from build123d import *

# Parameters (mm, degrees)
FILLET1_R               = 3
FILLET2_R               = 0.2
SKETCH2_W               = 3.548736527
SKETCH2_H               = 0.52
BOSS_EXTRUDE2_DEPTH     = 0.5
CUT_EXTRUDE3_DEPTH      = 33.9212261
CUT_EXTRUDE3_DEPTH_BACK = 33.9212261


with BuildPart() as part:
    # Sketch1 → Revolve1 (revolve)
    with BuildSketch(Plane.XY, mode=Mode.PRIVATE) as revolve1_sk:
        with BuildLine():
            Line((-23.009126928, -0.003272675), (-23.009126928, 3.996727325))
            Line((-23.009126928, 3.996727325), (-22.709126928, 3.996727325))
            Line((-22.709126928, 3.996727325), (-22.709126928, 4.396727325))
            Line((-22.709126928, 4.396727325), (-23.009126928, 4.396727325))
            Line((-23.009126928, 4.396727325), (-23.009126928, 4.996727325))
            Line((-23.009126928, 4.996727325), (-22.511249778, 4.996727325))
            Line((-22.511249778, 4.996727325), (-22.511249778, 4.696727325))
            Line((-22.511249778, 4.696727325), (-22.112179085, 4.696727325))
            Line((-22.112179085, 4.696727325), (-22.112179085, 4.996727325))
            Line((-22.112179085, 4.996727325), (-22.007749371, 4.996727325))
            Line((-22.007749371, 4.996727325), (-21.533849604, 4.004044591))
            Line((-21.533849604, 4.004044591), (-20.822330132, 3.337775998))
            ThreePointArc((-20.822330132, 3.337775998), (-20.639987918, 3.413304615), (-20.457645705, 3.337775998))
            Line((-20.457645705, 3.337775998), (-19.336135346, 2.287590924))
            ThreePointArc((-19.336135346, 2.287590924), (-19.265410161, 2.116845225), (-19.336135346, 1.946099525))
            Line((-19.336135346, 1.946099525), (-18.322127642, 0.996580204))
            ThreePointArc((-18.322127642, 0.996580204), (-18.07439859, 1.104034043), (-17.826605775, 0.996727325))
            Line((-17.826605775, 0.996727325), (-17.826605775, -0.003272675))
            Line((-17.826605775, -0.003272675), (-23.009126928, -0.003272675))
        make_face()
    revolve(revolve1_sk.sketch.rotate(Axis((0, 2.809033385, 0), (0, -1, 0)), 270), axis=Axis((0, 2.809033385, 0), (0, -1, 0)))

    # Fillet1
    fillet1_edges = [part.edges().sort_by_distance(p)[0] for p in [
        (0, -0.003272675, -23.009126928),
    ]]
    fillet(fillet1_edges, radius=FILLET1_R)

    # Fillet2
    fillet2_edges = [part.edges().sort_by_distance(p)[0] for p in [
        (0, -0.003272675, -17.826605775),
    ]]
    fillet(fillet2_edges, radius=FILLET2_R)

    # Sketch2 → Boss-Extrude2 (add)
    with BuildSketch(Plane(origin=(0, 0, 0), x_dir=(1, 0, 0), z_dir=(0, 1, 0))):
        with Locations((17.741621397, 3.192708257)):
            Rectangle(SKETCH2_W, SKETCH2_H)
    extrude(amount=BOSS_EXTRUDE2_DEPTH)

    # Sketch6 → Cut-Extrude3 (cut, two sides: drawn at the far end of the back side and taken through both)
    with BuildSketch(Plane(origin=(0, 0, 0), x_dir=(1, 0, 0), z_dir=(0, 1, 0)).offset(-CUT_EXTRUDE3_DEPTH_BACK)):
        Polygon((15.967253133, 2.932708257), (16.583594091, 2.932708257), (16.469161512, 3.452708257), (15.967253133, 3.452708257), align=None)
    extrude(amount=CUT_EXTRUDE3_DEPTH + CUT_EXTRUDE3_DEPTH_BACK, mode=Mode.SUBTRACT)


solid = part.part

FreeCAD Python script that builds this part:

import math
import FreeCAD as App
import Part
import Sketcher


def edges_at(feature, points):
    """Names of the edges that pass closest to the given points."""
    edges = feature.Shape.Edges
    near = lambda p: min(range(len(edges)), key=lambda i: edges[i].distToShape(Part.Vertex(*p))[0])
    return sorted({f"Edge{near(p) + 1}" for p in points})


def add_polygon(sketch, points):
    """Adds a closed chain of lines whose ends are joined by coincident constraints."""
    first, n = sketch.GeometryCount, len(points)
    for a, b in zip(points, points[1:] + points[:1]):
        sketch.addGeometry(Part.LineSegment(App.Vector(*a, 0), App.Vector(*b, 0)), False)
    for i in range(n):
        sketch.addConstraint(Sketcher.Constraint("Coincident", first + i, 2, first + (i + 1) % n, 1))

doc = App.newDocument("Part")
body = doc.addObject("PartDesign::Body", "Body")

sketch1 = body.newObject("Sketcher::SketchObject", "Sketch")
sketch1.AttachmentSupport = (doc.getObject("XY_Plane"), [""])
sketch1.MapMode = "FlatFace"
sketch1.addGeometry([
    Part.LineSegment(App.Vector(-23.009127, 3.996727, 0), App.Vector(-23.009127, -0.003273, 0)),
    Part.LineSegment(App.Vector(-23.009127, -0.003273, 0), App.Vector(-17.826606, -0.003273, 0)),
    Part.LineSegment(App.Vector(-17.826606, -0.003273, 0), App.Vector(-17.826606, 0.996727, 0)),
    Part.ArcOfCircle(Part.Circle(App.Vector(-18.074298, 0.764512, 0), App.Vector(0, 0, 1), 0.339522), math.radians(43.152925), math.radians(136.881097)),
    Part.LineSegment(App.Vector(-18.322128, 0.99658, 0), App.Vector(-19.336135, 1.9461, 0)),
    Part.ArcOfCircle(Part.Circle(App.Vector(-19.506881, 2.116845, 0), App.Vector(0, 0, 1), 0.241471), math.radians(-45), math.radians(45)),
    Part.LineSegment(App.Vector(-19.336135, 2.287591, 0), App.Vector(-20.457646, 3.337776, 0)),
    Part.ArcOfCircle(Part.Circle(App.Vector(-20.639988, 3.155434, 0), App.Vector(0, 0, 1), 0.257871), math.radians(45), math.radians(135)),
    Part.LineSegment(App.Vector(-20.82233, 3.337776, 0), App.Vector(-21.53385, 4.004045, 0)),
    Part.LineSegment(App.Vector(-21.53385, 4.004045, 0), App.Vector(-22.007749, 4.996727, 0)),
    Part.LineSegment(App.Vector(-22.007749, 4.996727, 0), App.Vector(-22.112179, 4.996727, 0)),
    Part.LineSegment(App.Vector(-22.112179, 4.996727, 0), App.Vector(-22.112179, 4.696727, 0)),
    Part.LineSegment(App.Vector(-22.112179, 4.696727, 0), App.Vector(-22.51125, 4.696727, 0)),
    Part.LineSegment(App.Vector(-22.51125, 4.696727, 0), App.Vector(-22.51125, 4.996727, 0)),
    Part.LineSegment(App.Vector(-22.51125, 4.996727, 0), App.Vector(-23.009127, 4.996727, 0)),
    Part.LineSegment(App.Vector(-23.009127, 4.996727, 0), App.Vector(-23.009127, 4.396727, 0)),
    Part.LineSegment(App.Vector(-23.009127, 4.396727, 0), App.Vector(-22.709127, 4.396727, 0)),
    Part.LineSegment(App.Vector(-22.709127, 4.396727, 0), App.Vector(-22.709127, 3.996727, 0)),
    Part.LineSegment(App.Vector(-22.709127, 3.996727, 0), App.Vector(-23.009127, 3.996727, 0)),
], False)
sketch1.addConstraint([
    Sketcher.Constraint("Coincident", 0, 2, 1, 1),
    Sketcher.Constraint("Coincident", 1, 2, 2, 1),
    Sketcher.Constraint("Coincident", 2, 2, 3, 1),
    Sketcher.Constraint("Coincident", 3, 2, 4, 1),
    Sketcher.Constraint("Coincident", 4, 2, 5, 1),
    Sketcher.Constraint("Coincident", 5, 2, 6, 1),
    Sketcher.Constraint("Coincident", 6, 2, 7, 1),
    Sketcher.Constraint("Coincident", 7, 2, 8, 1),
    Sketcher.Constraint("Coincident", 8, 2, 9, 1),
    Sketcher.Constraint("Coincident", 9, 2, 10, 1),
    Sketcher.Constraint("Coincident", 10, 2, 11, 1),
    Sketcher.Constraint("Coincident", 11, 2, 12, 1),
    Sketcher.Constraint("Coincident", 12, 2, 13, 1),
    Sketcher.Constraint("Coincident", 13, 2, 14, 1),
    Sketcher.Constraint("Coincident", 14, 2, 15, 1),
    Sketcher.Constraint("Coincident", 15, 2, 16, 1),
    Sketcher.Constraint("Coincident", 16, 2, 17, 1),
    Sketcher.Constraint("Coincident", 17, 2, 18, 1),
    Sketcher.Constraint("Coincident", 18, 2, 0, 1),
    Sketcher.Constraint("Vertical", 0),
    Sketcher.Constraint("Horizontal", 1),
    Sketcher.Constraint("Vertical", 2),
    Sketcher.Constraint("Horizontal", 10),
    Sketcher.Constraint("Vertical", 11),
    Sketcher.Constraint("Horizontal", 12),
    Sketcher.Constraint("Vertical", 13),
    Sketcher.Constraint("Horizontal", 14),
    Sketcher.Constraint("Vertical", 15),
    Sketcher.Constraint("Horizontal", 16),
    Sketcher.Constraint("Vertical", 17),
    Sketcher.Constraint("Horizontal", 18),
    Sketcher.Constraint("Parallel", 4, 6),
    Sketcher.Constraint("Parallel", 6, 8),
    Sketcher.Constraint("Horizontal", 6, 2, 7, 2),
    Sketcher.Constraint("Horizontal", 10, 2, 13, 2),
    Sketcher.Constraint("Vertical", 4, 2, 5, 2),
    Sketcher.Constraint("Vertical", 0, 2, 14, 2),
    Sketcher.Constraint("Equal", 18, 11),
    Sketcher.Constraint("DistanceY", 0, 2, 0, 1, 4.0),
    Sketcher.Constraint("DistanceY", 2, 1, 2, 2, 1.0),
    Sketcher.Constraint("DistanceX", 16, 1, 16, 2, 0.3),
    Sketcher.Constraint("DistanceY", 15, 2, 15, 1, 0.6),
    Sketcher.Constraint("DistanceY", 17, 2, 17, 1, 0.4),
    Sketcher.Constraint("Distance", 9, 1.1),
    Sketcher.Constraint("Radius", 5, 0.241471),
    Sketcher.Constraint("Radius", 7, 0.257871),
    Sketcher.Constraint("Radius", 3, 0.339522),
    Sketcher.Constraint("DistanceX", 1, 1, 1, 2, 5.182521),
    Sketcher.Constraint("DistanceX", 10, 2, 10, 1, 0.10443),
    Sketcher.Constraint("DistanceX", 12, 2, 12, 1, 0.399071),
    Sketcher.Constraint("DistanceY", -1, 1, 4, 2, 1.9461),
    Sketcher.Constraint("DistanceY", 5, 3, 8, 2, 1.887199),
    Sketcher.Constraint("DistanceX", 9, 2, 8, 2, 0.4739),
    Sketcher.Constraint("Distance", 4, 1.389172),
    Sketcher.Constraint("Distance", 6, 1.536449),
    Sketcher.Constraint("Distance", 8, 0.974769),
    Sketcher.Constraint("DistanceX", 14, 2, 14, 1, 0.497877),
    Sketcher.Constraint("DistanceY", -1, 1, 3, 3, 0.764512),
    Sketcher.Constraint("DistanceX", 5, 3, -1, 1, 19.506881),
    Sketcher.Constraint("DistanceY", -1, 1, 3, 2, 0.99658),
])
revolution = body.newObject("PartDesign::Revolution", "Revolution")
revolution.Profile = sketch1
revolution.ReferenceAxis = (sketch1, ["V_Axis"])
revolution.Angle = 360
doc.recompute()

fillet = body.newObject("PartDesign::Fillet", "Fillet")
fillet.Base = (revolution, edges_at(revolution, [(0, -0.003, -23.009)]))
fillet.Radius = 3
doc.recompute()

fillet2 = body.newObject("PartDesign::Fillet", "Fillet001")
fillet2.Base = (fillet, edges_at(fillet, [(0, -0.003, -17.827)]))
fillet2.Radius = 0.2

sketch2 = body.newObject("Sketcher::SketchObject", "Sketch001")
sketch2.AttachmentSupport = (doc.getObject("XZ_Plane"), [""])
sketch2.MapMode = "FlatFace"
add_polygon(sketch2, [(15.967253, -3.452708), (15.967253, -2.932708), (19.51599, -2.932708), (19.51599, -3.452708)])
sketch2.addConstraint([
    Sketcher.Constraint("Vertical", 0),
    Sketcher.Constraint("Horizontal", 1),
    Sketcher.Constraint("Vertical", 2),
    Sketcher.Constraint("Horizontal", 3),
    Sketcher.Constraint("DistanceY", 0, 1, 0, 2, 0.52),
    Sketcher.Constraint("DistanceX", 1, 1, 1, 2, 3.548737),
    Sketcher.Constraint("DistanceY", 0, 2, -1, 1, 2.932708),
    Sketcher.Constraint("DistanceX", -1, 1, 1, 2, 19.51599),
])
pad1 = body.newObject("PartDesign::Pad", "Pad")
pad1.Profile = sketch2
pad1.Length = 0.5
pad1.Reversed = True

sketch3 = body.newObject("Sketcher::SketchObject", "Sketch002")
sketch3.AttachmentSupport = (doc.getObject("XZ_Plane"), [""])
sketch3.MapMode = "FlatFace"
add_polygon(sketch3, [(15.967253, -2.932708), (16.583594, -2.932708), (16.469162, -3.452708), (15.967253, -3.452708)])
sketch3.addConstraint([
    Sketcher.Constraint("Horizontal", 0),
    Sketcher.Constraint("Horizontal", 2),
    Sketcher.Constraint("Vertical", 3),
    Sketcher.Constraint("DistanceY", 3, 1, 3, 2, 0.52),
    Sketcher.Constraint("DistanceX", 0, 1, 0, 2, 0.616341),
    Sketcher.Constraint("DistanceX", 2, 2, 2, 1, 0.501908),
    Sketcher.Constraint("DistanceY", 0, 2, -1, 1, 2.932708),
    Sketcher.Constraint("DistanceX", -1, 1, 1, 2, 16.469162),
])
pocket1 = body.newObject("PartDesign::Pocket", "Pocket")
pocket1.Profile = sketch3
pocket1.Type = "ThroughAll"
pocket1.Midplane = True

doc.recompute()
